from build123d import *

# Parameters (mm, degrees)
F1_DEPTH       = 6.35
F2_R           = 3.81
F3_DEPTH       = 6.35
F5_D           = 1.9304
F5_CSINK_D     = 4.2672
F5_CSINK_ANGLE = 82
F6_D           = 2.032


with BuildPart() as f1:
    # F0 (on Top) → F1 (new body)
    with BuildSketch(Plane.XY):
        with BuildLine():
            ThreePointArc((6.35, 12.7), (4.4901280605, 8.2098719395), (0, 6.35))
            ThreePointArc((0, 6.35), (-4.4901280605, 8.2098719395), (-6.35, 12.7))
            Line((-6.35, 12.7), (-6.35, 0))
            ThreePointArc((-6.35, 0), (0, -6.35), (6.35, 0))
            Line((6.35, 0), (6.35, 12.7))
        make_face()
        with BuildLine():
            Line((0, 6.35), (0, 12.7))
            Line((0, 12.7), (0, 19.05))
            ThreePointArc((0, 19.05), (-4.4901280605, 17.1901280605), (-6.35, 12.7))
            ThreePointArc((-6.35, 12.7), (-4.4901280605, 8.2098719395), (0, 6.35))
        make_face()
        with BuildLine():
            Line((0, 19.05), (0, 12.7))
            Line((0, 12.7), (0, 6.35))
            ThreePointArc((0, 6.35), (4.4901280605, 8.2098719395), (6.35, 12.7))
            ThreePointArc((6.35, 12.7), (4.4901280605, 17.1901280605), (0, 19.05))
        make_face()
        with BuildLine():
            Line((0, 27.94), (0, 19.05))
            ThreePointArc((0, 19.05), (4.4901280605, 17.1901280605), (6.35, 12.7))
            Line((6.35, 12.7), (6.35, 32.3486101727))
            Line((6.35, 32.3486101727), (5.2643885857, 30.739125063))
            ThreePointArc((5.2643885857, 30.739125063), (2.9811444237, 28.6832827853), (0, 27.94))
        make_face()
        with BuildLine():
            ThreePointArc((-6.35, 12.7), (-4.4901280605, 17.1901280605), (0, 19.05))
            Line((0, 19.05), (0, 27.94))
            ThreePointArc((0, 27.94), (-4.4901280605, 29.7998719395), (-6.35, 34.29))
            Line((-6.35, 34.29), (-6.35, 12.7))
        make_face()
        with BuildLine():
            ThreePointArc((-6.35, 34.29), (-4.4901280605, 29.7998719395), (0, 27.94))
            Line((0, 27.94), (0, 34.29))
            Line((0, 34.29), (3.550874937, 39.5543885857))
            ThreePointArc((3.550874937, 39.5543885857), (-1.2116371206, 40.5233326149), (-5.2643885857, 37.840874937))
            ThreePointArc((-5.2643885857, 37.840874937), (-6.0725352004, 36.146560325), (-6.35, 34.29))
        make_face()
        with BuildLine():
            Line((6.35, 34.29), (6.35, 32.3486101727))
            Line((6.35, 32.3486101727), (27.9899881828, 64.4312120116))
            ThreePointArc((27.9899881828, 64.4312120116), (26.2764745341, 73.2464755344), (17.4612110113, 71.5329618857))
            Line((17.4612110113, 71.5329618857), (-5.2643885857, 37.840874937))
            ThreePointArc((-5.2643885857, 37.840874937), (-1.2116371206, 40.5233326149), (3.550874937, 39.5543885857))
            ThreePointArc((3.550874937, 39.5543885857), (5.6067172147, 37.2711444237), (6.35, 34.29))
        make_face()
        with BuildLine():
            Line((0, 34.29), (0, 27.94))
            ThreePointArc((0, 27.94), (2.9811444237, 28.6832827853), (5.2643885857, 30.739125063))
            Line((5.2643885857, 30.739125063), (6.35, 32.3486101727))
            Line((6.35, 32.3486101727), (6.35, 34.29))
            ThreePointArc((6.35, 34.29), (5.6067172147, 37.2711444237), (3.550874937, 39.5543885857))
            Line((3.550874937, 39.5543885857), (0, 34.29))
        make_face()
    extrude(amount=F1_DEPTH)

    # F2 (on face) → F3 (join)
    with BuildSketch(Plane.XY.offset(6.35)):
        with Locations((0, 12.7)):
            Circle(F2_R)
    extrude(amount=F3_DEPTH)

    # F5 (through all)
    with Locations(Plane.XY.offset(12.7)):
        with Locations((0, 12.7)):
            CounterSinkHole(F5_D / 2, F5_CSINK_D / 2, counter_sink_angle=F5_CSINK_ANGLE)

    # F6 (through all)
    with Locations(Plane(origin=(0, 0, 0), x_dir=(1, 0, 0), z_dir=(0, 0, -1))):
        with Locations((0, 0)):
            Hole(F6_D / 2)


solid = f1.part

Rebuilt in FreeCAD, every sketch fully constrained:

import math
import FreeCAD as App
import Part
import Sketcher
Q = App.Units.Quantity

doc = App.newDocument("Part")
body = doc.addObject("PartDesign::Body", "Body")

sketch1 = body.newObject("Sketcher::SketchObject", "Sketch")
sketch1.AttachmentSupport = (doc.getObject("XY_Plane"), [""])
sketch1.MapMode = "FlatFace"
sketch1.addGeometry(Part.LineSegment(App.Vector(6.3, 0, 0), App.Vector(6.3, 32.3, 0)), False)
sketch1.addGeometry(Part.LineSegment(App.Vector(6.3, 32.3, 0), App.Vector(28, 64.4, 0)), False)
sketch1.addGeometry(Part.ArcOfCircle(Part.Circle(App.Vector(22.7, 68, 0), App.Vector(0, 0, 1), 6.3), math.radians(-34), math.radians(146)), False)
sketch1.addGeometry(Part.LineSegment(App.Vector(17.5, 71.5, 0), App.Vector(-5.3, 37.8, 0)), False)
sketch1.addGeometry(Part.ArcOfCircle(Part.Circle(App.Vector(0, 34.3, 0), App.Vector(0, 0, 1), 6.3), math.radians(146), math.radians(180)), False)
sketch1.addGeometry(Part.LineSegment(App.Vector(-6.3, 34.3, 0), App.Vector(-6.3, 0, 0)), False)
sketch1.addGeometry(Part.ArcOfCircle(Part.Circle(App.Vector(0, 0, 0), App.Vector(0, 0, 1), 6.3), math.radians(180), math.radians(360)), False)
sketch1.addConstraint(Sketcher.Constraint("Coincident", 0, 2, 1, 1))
sketch1.addConstraint(Sketcher.Constraint("Tangent", 1, 2, 2, 1))
sketch1.addConstraint(Sketcher.Constraint("Tangent", 2, 2, 3, 1))
sketch1.addConstraint(Sketcher.Constraint("Tangent", 3, 2, 4, 1))
sketch1.addConstraint(Sketcher.Constraint("Tangent", 4, 2, 5, 1))
sketch1.addConstraint(Sketcher.Constraint("Tangent", 5, 2, 6, 1))
sketch1.addConstraint(Sketcher.Constraint("Tangent", 6, 2, 0, 1))
sketch1.addConstraint(Sketcher.Constraint("Vertical", 0))
sketch1.addConstraint(Sketcher.Constraint("Vertical", 5))
sketch1.addConstraint(Sketcher.Constraint("Coincident", 6, 3, -1, 1))
sketch1.addConstraint(Sketcher.Constraint("Equal", 2, 4))
sketch1.addConstraint(Sketcher.Constraint("Equal", 4, 6))
sketch1.addConstraint(Sketcher.Constraint("Parallel", 1, 3))
sketch1.addConstraint(Sketcher.Constraint("Radius", 2, Q("0.25 in")))
sketch1.addConstraint(Sketcher.Constraint("Angle", 1, Q("56 deg")))
sketch1.addConstraint(Sketcher.Constraint("Distance", 3, Q("1.6 in")))
sketch1.addConstraint(Sketcher.Constraint("DistanceY", 5, 2, 5, 1, Q("1.35 in")))
pad1 = body.newObject("PartDesign::Pad", "Pad")
pad1.Profile = sketch1
pad1.Length = Q("0.25 in")

sketch2 = body.newObject("Sketcher::SketchObject", "Sketch001")
sketch2.AttachmentSupport = (doc.getObject("XY_Plane"), [""])
sketch2.MapMode = "FlatFace"
sketch2.AttachmentOffset = App.Placement(App.Vector(0, 0, 0.25 * 25.4), App.Rotation())
sketch2.addGeometry(Part.Circle(App.Vector(0, 12.7, 0), App.Vector(0, 0, 1), 3.8), False)
sketch2.addConstraint(Sketcher.Constraint("PointOnObject", 0, 3, -2))
sketch2.addConstraint(Sketcher.Constraint("Diameter", 0, Q("0.3 in")))
sketch2.addConstraint(Sketcher.Constraint("DistanceY", -1, 1, 0, 3, Q("0.5 in")))
pad2 = body.newObject("PartDesign::Pad", "Pad001")
pad2.Profile = sketch2
pad2.Length = Q("0.25 in")

sketch3 = body.newObject("Sketcher::SketchObject", "Sketch002")
sketch3.AttachmentSupport = (doc.getObject("XY_Plane"), [""])
sketch3.MapMode = "FlatFace"
sketch3.AttachmentOffset = App.Placement(App.Vector(0, 0, 0.5 * 25.4), App.Rotation())
sketch3.addGeometry(Part.Circle(App.Vector(0, 12.7, 0), App.Vector(0, 0, 1), 1), False)
sketch3.addConstraint(Sketcher.Constraint("PointOnObject", 0, 3, -2))
sketch3.addConstraint(Sketcher.Constraint("Diameter", 0, Q("0.076 in")))
sketch3.addConstraint(Sketcher.Constraint("DistanceY", -1, 1, 0, 3, Q("0.5 in")))
doc.recompute()
hole = body.newObject("PartDesign::Hole", "Hole")
hole.Profile = sketch3
hole.ThreadType = "None"
hole.Diameter = Q("0.076 in")
hole.DepthType = "ThroughAll"
hole.HoleCutType = "Countersink"
hole.HoleCutDiameter = Q("0.168 in")
hole.HoleCutCountersinkAngle = 82

sketch4 = body.newObject("Sketcher::SketchObject", "Sketch003")
sketch4.AttachmentSupport = (doc.getObject("XY_Plane"), [""])
sketch4.MapMode = "FlatFace"
sketch4.addGeometry(Part.Circle(App.Vector(0, 0, 0), App.Vector(0, 0, 1), 1), False)
sketch4.addConstraint(Sketcher.Constraint("Coincident", 0, 3, -1, 1))
sketch4.addConstraint(Sketcher.Constraint("Diameter", 0, Q("0.08 in")))
doc.recompute()
hole2 = body.newObject("PartDesign::Hole", "Hole001")
hole2.Profile = sketch4
hole2.ThreadType = "None"
hole2.Diameter = Q("0.08 in")
hole2.DepthType = "ThroughAll"
hole2.Reversed = True

doc.recompute()
